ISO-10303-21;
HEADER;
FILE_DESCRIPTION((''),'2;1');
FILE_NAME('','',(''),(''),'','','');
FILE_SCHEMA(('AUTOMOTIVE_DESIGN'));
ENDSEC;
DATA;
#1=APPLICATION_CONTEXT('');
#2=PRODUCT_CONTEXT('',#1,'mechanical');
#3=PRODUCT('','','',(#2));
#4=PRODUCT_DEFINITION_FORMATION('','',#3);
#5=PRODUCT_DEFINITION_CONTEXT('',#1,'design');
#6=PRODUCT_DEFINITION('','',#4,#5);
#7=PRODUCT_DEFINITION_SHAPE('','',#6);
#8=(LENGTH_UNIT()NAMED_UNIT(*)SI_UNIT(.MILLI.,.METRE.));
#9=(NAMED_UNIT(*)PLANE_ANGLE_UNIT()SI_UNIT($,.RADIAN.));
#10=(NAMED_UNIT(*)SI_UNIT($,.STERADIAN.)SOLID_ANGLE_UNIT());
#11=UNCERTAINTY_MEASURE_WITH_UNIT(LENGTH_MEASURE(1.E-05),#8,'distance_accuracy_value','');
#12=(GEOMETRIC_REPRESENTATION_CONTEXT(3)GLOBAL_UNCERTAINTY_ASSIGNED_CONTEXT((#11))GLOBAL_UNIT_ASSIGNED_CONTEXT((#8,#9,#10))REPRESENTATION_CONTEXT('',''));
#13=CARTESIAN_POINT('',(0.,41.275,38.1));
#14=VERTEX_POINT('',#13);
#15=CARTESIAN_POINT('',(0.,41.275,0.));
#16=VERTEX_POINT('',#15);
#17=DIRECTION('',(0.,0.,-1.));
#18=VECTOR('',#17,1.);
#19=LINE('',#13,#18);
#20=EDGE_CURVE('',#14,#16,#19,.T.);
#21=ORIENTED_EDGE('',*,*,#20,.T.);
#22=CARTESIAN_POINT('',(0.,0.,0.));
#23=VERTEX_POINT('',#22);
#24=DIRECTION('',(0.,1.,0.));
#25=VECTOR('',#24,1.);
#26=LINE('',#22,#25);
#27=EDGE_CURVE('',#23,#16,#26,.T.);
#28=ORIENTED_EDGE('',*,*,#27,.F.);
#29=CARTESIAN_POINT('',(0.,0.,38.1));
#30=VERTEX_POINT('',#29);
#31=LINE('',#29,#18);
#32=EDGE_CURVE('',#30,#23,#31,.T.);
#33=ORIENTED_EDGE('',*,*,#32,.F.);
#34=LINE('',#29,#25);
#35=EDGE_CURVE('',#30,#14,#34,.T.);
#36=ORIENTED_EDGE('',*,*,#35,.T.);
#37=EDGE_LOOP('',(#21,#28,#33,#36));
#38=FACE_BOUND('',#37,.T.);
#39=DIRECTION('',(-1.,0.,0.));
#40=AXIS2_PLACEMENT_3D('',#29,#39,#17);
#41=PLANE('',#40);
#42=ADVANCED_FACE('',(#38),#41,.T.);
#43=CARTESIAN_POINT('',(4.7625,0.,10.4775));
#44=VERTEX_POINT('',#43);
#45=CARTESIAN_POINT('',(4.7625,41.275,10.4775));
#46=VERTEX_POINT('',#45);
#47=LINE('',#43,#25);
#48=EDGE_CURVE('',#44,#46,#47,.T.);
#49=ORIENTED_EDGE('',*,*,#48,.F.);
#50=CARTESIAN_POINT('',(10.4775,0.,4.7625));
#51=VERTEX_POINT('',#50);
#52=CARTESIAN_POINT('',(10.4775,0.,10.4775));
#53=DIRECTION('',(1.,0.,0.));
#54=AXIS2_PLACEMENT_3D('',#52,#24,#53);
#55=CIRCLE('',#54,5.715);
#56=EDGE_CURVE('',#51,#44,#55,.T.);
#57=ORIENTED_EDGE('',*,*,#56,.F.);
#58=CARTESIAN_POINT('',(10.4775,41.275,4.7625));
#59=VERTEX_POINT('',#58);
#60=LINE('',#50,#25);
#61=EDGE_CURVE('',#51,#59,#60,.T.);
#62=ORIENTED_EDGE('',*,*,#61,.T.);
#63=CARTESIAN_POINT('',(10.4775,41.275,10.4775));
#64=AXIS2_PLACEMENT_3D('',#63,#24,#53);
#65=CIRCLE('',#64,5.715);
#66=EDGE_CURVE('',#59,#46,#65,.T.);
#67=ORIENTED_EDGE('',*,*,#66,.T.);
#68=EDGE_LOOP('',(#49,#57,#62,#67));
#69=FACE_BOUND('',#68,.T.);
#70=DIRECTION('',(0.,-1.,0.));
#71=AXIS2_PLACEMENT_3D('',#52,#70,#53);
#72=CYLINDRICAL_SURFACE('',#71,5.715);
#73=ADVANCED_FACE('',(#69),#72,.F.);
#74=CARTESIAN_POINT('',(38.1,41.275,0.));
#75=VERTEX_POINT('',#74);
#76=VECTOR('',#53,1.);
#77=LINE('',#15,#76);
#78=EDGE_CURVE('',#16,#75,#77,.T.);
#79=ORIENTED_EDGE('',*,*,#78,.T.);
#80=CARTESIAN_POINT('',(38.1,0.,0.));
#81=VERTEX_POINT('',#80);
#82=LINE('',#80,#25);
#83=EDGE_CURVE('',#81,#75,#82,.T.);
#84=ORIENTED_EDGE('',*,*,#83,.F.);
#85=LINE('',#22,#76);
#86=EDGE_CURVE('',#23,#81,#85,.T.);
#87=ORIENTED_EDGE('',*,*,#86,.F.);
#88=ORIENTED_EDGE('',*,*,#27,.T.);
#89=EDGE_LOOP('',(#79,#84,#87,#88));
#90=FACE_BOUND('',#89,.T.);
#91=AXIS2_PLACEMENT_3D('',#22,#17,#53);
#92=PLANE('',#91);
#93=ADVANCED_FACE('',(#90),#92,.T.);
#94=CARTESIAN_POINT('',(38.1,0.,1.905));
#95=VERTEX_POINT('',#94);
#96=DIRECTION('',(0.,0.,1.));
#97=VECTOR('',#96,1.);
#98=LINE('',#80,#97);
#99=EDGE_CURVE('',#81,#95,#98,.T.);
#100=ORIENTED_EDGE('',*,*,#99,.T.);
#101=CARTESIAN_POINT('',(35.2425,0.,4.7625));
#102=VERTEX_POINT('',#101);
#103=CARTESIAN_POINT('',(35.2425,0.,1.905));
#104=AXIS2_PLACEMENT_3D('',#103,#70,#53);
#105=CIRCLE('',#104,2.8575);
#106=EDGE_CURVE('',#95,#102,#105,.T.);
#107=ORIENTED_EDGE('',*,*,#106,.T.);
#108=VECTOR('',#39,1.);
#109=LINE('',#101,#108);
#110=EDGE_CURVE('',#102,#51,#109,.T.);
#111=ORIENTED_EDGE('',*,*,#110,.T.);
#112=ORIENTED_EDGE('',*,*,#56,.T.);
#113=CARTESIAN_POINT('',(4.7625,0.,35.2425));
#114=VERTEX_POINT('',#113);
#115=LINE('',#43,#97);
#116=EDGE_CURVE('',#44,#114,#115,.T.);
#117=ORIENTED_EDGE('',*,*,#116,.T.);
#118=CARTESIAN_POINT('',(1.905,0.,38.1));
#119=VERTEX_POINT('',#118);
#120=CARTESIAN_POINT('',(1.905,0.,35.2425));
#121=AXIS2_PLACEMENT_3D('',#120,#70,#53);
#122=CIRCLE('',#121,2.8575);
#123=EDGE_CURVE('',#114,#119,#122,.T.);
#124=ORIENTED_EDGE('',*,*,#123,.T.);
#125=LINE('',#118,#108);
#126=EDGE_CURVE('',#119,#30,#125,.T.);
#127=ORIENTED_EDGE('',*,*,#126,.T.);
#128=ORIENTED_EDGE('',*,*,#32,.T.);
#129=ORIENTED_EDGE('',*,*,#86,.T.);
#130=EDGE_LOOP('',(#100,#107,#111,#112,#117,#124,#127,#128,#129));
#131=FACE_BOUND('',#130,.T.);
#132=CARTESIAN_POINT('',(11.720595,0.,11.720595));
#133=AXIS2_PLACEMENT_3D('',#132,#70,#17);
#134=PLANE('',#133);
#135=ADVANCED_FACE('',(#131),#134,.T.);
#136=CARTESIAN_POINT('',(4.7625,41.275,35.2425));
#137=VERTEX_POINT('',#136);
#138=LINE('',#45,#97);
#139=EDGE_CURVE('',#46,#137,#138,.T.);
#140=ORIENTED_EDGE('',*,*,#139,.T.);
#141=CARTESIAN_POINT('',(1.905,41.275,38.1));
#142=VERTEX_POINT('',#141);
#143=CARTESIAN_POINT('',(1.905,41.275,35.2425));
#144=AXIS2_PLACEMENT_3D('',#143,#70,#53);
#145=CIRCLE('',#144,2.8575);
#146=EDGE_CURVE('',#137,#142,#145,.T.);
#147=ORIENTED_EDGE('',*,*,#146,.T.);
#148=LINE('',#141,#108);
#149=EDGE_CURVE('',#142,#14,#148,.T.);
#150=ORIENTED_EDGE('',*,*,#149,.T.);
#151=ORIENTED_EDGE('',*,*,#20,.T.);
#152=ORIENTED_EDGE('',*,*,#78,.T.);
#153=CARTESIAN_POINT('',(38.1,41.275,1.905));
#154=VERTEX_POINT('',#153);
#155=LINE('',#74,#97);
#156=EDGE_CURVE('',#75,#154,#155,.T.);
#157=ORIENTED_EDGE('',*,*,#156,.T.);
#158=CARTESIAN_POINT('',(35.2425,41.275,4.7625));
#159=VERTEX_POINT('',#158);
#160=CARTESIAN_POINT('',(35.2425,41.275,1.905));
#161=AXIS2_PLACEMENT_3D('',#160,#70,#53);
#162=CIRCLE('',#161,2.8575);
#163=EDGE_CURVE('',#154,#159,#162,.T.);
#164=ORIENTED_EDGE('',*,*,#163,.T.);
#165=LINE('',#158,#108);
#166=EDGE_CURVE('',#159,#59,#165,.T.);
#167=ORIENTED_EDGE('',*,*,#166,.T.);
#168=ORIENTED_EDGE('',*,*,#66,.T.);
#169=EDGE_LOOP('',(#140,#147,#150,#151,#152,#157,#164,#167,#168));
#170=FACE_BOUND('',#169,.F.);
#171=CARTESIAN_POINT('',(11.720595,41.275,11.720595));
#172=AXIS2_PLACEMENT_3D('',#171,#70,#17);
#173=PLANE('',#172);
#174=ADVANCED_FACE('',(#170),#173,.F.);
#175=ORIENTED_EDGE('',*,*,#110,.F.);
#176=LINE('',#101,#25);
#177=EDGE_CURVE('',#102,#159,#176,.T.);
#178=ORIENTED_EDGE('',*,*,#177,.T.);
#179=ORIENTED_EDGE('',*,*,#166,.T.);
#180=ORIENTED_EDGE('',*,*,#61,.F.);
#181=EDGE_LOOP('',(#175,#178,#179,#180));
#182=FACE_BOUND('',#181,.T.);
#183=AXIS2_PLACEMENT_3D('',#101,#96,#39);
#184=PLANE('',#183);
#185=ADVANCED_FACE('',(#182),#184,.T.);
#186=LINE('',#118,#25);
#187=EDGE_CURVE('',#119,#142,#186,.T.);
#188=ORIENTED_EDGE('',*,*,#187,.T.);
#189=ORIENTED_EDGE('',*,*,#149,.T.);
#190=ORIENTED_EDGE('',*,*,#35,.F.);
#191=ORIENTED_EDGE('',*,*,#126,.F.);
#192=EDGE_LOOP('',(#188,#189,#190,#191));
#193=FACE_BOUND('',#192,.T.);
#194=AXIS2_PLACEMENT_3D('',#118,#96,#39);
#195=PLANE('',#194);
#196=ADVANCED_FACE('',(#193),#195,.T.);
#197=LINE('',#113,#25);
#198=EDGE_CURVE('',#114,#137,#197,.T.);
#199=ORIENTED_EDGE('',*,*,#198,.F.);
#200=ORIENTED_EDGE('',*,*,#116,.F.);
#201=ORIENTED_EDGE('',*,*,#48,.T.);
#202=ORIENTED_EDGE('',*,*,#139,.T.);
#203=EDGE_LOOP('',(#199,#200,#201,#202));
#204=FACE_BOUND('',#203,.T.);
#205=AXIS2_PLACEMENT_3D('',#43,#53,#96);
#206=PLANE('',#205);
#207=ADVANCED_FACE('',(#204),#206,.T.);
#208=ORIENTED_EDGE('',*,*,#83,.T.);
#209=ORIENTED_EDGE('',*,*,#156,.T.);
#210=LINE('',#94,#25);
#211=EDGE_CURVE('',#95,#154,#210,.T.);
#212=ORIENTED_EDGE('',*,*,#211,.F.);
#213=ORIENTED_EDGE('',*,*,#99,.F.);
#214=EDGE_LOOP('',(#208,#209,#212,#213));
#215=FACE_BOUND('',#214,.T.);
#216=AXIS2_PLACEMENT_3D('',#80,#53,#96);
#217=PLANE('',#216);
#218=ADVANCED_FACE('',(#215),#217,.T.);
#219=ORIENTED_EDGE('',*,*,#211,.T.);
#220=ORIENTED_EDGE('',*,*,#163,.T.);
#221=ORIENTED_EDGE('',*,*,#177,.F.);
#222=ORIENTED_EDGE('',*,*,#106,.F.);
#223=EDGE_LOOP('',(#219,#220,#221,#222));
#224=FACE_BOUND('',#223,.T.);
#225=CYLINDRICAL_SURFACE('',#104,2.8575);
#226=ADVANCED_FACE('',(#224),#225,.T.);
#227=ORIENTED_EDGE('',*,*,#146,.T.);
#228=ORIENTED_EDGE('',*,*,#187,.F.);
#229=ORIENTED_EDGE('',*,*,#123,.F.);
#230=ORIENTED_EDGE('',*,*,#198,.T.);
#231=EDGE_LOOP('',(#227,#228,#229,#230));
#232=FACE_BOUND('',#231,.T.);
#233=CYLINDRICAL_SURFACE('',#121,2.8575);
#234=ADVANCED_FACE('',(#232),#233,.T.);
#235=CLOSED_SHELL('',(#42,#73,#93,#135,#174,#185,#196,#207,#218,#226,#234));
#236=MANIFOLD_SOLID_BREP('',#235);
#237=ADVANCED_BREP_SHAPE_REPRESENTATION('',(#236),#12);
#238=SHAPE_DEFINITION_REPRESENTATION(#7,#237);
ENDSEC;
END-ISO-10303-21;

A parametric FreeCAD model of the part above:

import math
import FreeCAD as App
import Part
import Sketcher

V = App.Vector
Q = App.Units.Quantity

doc = App.newDocument("Part")
body = doc.addObject("PartDesign::Body", "Body")

sketch1 = body.newObject("Sketcher::SketchObject", "Sketch")
sketch1.AttachmentSupport = (doc.getObject("XZ_Plane"), [""])
sketch1.MapMode = "FlatFace"
sketch1.addGeometry(Part.LineSegment(V(1.9, 38.1, 0), V(0, 38.1, 0)), False)
sketch1.addGeometry(Part.LineSegment(V(0, 38.1, 0), V(0, 0, 0)), False)
sketch1.addGeometry(Part.LineSegment(V(0, 0, 0), V(38.1, 0, 0)), False)
sketch1.addGeometry(Part.LineSegment(V(38.1, 0, 0), V(38.1, 1.9, 0)), False)
sketch1.addGeometry(Part.ArcOfCircle(Part.Circle(V(35.2, 1.9, 0), V(0, 0, 1), 2.9), math.radians(0), math.radians(90)), False)
sketch1.addGeometry(Part.LineSegment(V(35.2, 4.8, 0), V(10.5, 4.8, 0)), False)
sketch1.addGeometry(Part.ArcOfCircle(Part.Circle(V(10.5, 10.5, 0), V(0, 0, 1), 5.7), math.radians(180), math.radians(270)), False)
sketch1.addGeometry(Part.LineSegment(V(4.8, 10.5, 0), V(4.8, 35.2, 0)), False)
sketch1.addGeometry(Part.ArcOfCircle(Part.Circle(V(1.9, 35.2, 0), V(0, 0, 1), 2.9), math.radians(0), math.radians(90)), False)
sketch1.addConstraint(Sketcher.Constraint("Coincident", 0, 2, 1, 1))
sketch1.addConstraint(Sketcher.Constraint("Coincident", 1, 2, 2, 1))
sketch1.addConstraint(Sketcher.Constraint("Coincident", 2, 2, 3, 1))
sketch1.addConstraint(Sketcher.Constraint("Tangent", 3, 2, 4, 1))
sketch1.addConstraint(Sketcher.Constraint("Tangent", 4, 2, 5, 1))
sketch1.addConstraint(Sketcher.Constraint("Tangent", 5, 2, 6, 2))
sketch1.addConstraint(Sketcher.Constraint("Tangent", 6, 1, 7, 1))
sketch1.addConstraint(Sketcher.Constraint("Tangent", 7, 2, 8, 1))
sketch1.addConstraint(Sketcher.Constraint("Tangent", 8, 2, 0, 1))
sketch1.addConstraint(Sketcher.Constraint("Horizontal", 0))
sketch1.addConstraint(Sketcher.Constraint("Vertical", 1))
sketch1.addConstraint(Sketcher.Constraint("Horizontal", 2))
sketch1.addConstraint(Sketcher.Constraint("Vertical", 3))
sketch1.addConstraint(Sketcher.Constraint("Horizontal", 5))
sketch1.addConstraint(Sketcher.Constraint("Vertical", 7))
sketch1.addConstraint(Sketcher.Constraint("Coincident", 1, 2, -1, 1))
sketch1.addConstraint(Sketcher.Constraint("Equal", 4, 8))
sketch1.addConstraint(Sketcher.Constraint("Equal", 2, 1))
sketch1.addConstraint(Sketcher.Constraint("Equal", 0, 3))
sketch1.addConstraint(Sketcher.Constraint("DistanceX", 2, 1, 2, 2, Q("1.5 in")))
sketch1.addConstraint(Sketcher.Constraint("Radius", 6, Q("0.225 in")))
sketch1.addConstraint(Sketcher.Constraint("Radius", 4, Q("0.1125 in")))
sketch1.addConstraint(Sketcher.Constraint("DistanceY", 5, 2, 7, 2, Q("1.2 in")))
pad1 = body.newObject("PartDesign::Pad", "Pad")
pad1.Profile = sketch1
pad1.Length = Q("1.625 in")
pad1.Reversed = True

doc.recompute()
